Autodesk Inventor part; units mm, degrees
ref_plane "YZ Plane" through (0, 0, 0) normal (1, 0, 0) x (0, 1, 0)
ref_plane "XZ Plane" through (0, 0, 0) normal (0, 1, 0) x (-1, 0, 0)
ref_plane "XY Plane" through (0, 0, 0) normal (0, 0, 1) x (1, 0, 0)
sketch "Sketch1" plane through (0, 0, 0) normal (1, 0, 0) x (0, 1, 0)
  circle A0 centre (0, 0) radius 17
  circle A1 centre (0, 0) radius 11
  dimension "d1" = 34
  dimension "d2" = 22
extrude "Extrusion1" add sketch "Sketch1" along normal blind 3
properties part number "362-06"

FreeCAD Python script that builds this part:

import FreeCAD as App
import Part
import Sketcher
Q = App.Units.Quantity

doc = App.newDocument("Part")
body = doc.addObject("PartDesign::Body", "Body")

sketch1 = doc.addObject("Sketcher::SketchObject", "Sketch")
body.addObject(sketch1)
sketch1.AttachmentSupport = (doc.YZ_Plane, [""])
sketch1.MapMode = "FlatFace"
sketch1.addGeometry([
    Part.Circle(App.Vector(0, 0, 0), App.Vector(0, 0, 1), 17),
    Part.Circle(App.Vector(0, 0, 0), App.Vector(0, 0, 1), 11),
], False)
sketch1.addConstraint([
    Sketcher.Constraint("Coincident", 0, 3, -1, 1),
    Sketcher.Constraint("Coincident", 1, 3, -1, 1),
    Sketcher.Constraint("Diameter", 0, Q("34 mm")),
    Sketcher.Constraint("Diameter", 1, Q("22 mm")),
])
pad1 = doc.addObject("PartDesign::Pad", "Pad")
body.addObject(pad1)
pad1.Profile = sketch1
pad1.Length = 3

doc.recompute()
